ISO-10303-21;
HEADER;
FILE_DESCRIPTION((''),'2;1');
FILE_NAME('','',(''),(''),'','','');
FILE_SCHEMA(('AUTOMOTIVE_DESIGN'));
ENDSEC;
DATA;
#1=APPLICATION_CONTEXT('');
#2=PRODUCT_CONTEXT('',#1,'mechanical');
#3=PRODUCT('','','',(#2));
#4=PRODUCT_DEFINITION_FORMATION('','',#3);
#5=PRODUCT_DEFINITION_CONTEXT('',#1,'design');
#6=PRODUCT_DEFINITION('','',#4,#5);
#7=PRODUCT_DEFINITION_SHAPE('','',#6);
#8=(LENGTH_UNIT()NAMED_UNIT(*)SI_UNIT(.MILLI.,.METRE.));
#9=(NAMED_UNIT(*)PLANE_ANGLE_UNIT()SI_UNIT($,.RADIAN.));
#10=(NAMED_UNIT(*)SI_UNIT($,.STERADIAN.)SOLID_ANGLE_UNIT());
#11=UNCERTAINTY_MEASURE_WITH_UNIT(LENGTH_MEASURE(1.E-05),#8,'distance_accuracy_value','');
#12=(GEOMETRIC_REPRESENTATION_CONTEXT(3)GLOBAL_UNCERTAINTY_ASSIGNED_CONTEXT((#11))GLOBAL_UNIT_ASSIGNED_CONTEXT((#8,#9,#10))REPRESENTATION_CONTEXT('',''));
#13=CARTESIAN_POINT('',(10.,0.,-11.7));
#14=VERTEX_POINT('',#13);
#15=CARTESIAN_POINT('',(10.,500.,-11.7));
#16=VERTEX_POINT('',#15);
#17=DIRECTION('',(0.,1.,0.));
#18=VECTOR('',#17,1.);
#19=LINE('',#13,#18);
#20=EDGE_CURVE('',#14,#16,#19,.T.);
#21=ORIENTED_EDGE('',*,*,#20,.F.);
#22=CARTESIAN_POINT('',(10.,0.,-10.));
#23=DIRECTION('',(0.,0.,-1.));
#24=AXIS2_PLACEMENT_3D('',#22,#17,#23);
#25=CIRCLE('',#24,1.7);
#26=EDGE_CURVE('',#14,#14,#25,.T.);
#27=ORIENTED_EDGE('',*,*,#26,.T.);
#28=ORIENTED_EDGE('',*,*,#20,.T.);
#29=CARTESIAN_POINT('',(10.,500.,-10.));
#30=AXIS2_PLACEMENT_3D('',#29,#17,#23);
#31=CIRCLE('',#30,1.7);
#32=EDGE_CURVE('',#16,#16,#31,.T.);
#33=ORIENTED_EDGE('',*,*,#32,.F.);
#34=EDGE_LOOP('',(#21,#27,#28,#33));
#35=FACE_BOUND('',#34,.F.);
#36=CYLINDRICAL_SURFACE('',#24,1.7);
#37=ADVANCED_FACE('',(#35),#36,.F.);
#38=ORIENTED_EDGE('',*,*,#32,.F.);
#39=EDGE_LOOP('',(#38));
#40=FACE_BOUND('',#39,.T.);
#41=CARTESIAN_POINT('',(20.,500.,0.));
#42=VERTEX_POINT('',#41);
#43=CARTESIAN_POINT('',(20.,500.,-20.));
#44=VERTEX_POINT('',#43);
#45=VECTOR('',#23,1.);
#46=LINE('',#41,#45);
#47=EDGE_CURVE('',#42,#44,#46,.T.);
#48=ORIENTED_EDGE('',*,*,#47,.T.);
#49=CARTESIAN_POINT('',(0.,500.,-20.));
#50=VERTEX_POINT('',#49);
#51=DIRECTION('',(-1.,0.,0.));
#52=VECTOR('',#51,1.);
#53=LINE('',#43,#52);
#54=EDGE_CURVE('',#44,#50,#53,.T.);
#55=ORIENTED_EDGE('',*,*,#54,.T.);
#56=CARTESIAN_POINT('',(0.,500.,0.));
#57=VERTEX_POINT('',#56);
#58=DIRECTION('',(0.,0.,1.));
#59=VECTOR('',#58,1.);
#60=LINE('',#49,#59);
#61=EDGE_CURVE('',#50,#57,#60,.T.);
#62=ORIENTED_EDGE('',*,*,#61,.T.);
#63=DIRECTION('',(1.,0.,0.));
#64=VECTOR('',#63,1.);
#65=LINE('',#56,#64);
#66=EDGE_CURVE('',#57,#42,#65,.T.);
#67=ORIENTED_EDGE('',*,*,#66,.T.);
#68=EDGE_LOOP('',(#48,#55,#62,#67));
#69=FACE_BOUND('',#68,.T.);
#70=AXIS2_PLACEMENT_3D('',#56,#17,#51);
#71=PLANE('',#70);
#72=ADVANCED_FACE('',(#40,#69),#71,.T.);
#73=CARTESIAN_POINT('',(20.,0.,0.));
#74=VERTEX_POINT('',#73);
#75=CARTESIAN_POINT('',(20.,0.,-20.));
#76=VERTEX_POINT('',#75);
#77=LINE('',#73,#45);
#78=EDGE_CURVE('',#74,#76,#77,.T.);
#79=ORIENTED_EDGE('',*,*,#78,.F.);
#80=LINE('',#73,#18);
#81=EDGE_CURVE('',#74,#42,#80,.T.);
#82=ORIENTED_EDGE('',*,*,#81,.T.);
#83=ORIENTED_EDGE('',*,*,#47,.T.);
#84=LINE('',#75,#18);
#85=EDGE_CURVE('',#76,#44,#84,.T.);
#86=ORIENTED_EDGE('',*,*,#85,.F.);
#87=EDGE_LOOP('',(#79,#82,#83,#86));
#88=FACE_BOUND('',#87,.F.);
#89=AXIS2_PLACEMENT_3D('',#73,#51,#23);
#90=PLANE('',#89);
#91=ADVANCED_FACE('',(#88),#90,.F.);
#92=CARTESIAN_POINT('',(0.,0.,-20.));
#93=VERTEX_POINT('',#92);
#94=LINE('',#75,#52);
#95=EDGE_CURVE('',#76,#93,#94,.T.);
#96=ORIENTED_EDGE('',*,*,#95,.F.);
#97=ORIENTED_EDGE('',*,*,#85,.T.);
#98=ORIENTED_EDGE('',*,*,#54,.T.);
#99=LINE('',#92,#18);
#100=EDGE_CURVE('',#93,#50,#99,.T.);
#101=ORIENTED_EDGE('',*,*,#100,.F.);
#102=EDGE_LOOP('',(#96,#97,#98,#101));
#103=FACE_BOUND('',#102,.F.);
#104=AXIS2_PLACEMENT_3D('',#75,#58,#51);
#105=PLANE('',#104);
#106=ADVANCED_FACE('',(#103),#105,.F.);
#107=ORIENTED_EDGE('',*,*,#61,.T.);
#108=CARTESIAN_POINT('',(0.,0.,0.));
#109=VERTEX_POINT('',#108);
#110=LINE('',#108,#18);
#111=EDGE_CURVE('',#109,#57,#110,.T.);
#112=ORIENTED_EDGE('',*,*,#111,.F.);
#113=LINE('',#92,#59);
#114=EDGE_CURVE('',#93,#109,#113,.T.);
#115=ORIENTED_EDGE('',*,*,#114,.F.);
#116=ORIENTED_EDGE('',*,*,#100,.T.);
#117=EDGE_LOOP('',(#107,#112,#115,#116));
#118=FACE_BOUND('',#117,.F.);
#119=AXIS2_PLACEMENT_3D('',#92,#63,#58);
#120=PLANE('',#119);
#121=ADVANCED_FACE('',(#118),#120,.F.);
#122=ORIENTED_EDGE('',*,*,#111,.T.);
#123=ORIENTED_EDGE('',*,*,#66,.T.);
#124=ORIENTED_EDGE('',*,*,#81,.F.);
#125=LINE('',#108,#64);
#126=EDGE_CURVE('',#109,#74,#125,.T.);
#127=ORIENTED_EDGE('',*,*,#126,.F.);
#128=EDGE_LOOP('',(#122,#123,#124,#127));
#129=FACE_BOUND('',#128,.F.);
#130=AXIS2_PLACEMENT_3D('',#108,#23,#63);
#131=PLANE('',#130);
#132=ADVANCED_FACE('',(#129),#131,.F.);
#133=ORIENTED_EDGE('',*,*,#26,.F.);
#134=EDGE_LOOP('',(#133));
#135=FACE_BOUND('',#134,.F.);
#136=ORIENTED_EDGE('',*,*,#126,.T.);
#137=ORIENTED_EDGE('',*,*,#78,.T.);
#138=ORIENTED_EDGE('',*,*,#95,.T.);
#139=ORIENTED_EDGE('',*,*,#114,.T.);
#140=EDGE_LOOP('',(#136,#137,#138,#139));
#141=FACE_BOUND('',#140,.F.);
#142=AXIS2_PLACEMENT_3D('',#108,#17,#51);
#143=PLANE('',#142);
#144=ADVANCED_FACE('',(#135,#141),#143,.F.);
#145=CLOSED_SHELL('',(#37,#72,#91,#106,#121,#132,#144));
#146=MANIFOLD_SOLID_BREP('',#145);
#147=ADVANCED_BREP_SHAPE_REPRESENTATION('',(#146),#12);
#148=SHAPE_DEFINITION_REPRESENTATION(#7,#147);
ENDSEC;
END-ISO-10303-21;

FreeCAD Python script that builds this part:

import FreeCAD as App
import Part
import Sketcher
Q = App.Units.Quantity

doc = App.newDocument("Part")
body = doc.addObject("PartDesign::Body", "Body")

sketch1 = body.newObject("Sketcher::SketchObject", "Sketch")
sketch1.AttachmentSupport = (doc.getObject("XZ_Plane"), [""])
sketch1.MapMode = "FlatFace"
sketch1.addGeometry([
    Part.LineSegment(App.Vector(0, -20, 0), App.Vector(0, 0, 0)),
    Part.LineSegment(App.Vector(0, 0, 0), App.Vector(20, 0, 0)),
    Part.LineSegment(App.Vector(20, 0, 0), App.Vector(20, -20, 0)),
    Part.LineSegment(App.Vector(20, -20, 0), App.Vector(0, -20, 0)),
], False)
sketch1.addConstraint([
    Sketcher.Constraint("Coincident", 0, 2, 1, 1),
    Sketcher.Constraint("Coincident", 1, 2, 2, 1),
    Sketcher.Constraint("Coincident", 2, 2, 3, 1),
    Sketcher.Constraint("Coincident", 3, 2, 0, 1),
    Sketcher.Constraint("Vertical", 0),
    Sketcher.Constraint("Horizontal", 1),
    Sketcher.Constraint("Vertical", 2),
    Sketcher.Constraint("Horizontal", 3),
    Sketcher.Constraint("Coincident", 0, 2, -1, 1),
    Sketcher.Constraint("Equal", 3, 0),
    Sketcher.Constraint("DistanceX", 1, 1, 1, 2, Q("20 mm")),
])
pad1 = body.newObject("PartDesign::Pad", "Pad")
pad1.Profile = sketch1
pad1.Length = 500
pad1.Reversed = True

sketch2 = body.newObject("Sketcher::SketchObject", "Sketch001")
sketch2.AttachmentSupport = (doc.getObject("XZ_Plane"), [""])
sketch2.MapMode = "FlatFace"
sketch2.addGeometry(Part.Circle(App.Vector(10, -10, 0), App.Vector(0, 0, 1), 1.7), False)
sketch2.addConstraint([
    Sketcher.Constraint("Diameter", 0, Q("3.4 mm")),
    Sketcher.Constraint("DistanceX", -1, 1, 0, 3, Q("10 mm")),
    Sketcher.Constraint("DistanceY", 0, 3, -1, 1, Q("10 mm")),
])
doc.recompute()
hole = body.newObject("PartDesign::Hole", "Hole")
hole.Profile = sketch2
hole.ThreadType = "None"
hole.Diameter = 3.4
hole.DepthType = "ThroughAll"

doc.recompute()
